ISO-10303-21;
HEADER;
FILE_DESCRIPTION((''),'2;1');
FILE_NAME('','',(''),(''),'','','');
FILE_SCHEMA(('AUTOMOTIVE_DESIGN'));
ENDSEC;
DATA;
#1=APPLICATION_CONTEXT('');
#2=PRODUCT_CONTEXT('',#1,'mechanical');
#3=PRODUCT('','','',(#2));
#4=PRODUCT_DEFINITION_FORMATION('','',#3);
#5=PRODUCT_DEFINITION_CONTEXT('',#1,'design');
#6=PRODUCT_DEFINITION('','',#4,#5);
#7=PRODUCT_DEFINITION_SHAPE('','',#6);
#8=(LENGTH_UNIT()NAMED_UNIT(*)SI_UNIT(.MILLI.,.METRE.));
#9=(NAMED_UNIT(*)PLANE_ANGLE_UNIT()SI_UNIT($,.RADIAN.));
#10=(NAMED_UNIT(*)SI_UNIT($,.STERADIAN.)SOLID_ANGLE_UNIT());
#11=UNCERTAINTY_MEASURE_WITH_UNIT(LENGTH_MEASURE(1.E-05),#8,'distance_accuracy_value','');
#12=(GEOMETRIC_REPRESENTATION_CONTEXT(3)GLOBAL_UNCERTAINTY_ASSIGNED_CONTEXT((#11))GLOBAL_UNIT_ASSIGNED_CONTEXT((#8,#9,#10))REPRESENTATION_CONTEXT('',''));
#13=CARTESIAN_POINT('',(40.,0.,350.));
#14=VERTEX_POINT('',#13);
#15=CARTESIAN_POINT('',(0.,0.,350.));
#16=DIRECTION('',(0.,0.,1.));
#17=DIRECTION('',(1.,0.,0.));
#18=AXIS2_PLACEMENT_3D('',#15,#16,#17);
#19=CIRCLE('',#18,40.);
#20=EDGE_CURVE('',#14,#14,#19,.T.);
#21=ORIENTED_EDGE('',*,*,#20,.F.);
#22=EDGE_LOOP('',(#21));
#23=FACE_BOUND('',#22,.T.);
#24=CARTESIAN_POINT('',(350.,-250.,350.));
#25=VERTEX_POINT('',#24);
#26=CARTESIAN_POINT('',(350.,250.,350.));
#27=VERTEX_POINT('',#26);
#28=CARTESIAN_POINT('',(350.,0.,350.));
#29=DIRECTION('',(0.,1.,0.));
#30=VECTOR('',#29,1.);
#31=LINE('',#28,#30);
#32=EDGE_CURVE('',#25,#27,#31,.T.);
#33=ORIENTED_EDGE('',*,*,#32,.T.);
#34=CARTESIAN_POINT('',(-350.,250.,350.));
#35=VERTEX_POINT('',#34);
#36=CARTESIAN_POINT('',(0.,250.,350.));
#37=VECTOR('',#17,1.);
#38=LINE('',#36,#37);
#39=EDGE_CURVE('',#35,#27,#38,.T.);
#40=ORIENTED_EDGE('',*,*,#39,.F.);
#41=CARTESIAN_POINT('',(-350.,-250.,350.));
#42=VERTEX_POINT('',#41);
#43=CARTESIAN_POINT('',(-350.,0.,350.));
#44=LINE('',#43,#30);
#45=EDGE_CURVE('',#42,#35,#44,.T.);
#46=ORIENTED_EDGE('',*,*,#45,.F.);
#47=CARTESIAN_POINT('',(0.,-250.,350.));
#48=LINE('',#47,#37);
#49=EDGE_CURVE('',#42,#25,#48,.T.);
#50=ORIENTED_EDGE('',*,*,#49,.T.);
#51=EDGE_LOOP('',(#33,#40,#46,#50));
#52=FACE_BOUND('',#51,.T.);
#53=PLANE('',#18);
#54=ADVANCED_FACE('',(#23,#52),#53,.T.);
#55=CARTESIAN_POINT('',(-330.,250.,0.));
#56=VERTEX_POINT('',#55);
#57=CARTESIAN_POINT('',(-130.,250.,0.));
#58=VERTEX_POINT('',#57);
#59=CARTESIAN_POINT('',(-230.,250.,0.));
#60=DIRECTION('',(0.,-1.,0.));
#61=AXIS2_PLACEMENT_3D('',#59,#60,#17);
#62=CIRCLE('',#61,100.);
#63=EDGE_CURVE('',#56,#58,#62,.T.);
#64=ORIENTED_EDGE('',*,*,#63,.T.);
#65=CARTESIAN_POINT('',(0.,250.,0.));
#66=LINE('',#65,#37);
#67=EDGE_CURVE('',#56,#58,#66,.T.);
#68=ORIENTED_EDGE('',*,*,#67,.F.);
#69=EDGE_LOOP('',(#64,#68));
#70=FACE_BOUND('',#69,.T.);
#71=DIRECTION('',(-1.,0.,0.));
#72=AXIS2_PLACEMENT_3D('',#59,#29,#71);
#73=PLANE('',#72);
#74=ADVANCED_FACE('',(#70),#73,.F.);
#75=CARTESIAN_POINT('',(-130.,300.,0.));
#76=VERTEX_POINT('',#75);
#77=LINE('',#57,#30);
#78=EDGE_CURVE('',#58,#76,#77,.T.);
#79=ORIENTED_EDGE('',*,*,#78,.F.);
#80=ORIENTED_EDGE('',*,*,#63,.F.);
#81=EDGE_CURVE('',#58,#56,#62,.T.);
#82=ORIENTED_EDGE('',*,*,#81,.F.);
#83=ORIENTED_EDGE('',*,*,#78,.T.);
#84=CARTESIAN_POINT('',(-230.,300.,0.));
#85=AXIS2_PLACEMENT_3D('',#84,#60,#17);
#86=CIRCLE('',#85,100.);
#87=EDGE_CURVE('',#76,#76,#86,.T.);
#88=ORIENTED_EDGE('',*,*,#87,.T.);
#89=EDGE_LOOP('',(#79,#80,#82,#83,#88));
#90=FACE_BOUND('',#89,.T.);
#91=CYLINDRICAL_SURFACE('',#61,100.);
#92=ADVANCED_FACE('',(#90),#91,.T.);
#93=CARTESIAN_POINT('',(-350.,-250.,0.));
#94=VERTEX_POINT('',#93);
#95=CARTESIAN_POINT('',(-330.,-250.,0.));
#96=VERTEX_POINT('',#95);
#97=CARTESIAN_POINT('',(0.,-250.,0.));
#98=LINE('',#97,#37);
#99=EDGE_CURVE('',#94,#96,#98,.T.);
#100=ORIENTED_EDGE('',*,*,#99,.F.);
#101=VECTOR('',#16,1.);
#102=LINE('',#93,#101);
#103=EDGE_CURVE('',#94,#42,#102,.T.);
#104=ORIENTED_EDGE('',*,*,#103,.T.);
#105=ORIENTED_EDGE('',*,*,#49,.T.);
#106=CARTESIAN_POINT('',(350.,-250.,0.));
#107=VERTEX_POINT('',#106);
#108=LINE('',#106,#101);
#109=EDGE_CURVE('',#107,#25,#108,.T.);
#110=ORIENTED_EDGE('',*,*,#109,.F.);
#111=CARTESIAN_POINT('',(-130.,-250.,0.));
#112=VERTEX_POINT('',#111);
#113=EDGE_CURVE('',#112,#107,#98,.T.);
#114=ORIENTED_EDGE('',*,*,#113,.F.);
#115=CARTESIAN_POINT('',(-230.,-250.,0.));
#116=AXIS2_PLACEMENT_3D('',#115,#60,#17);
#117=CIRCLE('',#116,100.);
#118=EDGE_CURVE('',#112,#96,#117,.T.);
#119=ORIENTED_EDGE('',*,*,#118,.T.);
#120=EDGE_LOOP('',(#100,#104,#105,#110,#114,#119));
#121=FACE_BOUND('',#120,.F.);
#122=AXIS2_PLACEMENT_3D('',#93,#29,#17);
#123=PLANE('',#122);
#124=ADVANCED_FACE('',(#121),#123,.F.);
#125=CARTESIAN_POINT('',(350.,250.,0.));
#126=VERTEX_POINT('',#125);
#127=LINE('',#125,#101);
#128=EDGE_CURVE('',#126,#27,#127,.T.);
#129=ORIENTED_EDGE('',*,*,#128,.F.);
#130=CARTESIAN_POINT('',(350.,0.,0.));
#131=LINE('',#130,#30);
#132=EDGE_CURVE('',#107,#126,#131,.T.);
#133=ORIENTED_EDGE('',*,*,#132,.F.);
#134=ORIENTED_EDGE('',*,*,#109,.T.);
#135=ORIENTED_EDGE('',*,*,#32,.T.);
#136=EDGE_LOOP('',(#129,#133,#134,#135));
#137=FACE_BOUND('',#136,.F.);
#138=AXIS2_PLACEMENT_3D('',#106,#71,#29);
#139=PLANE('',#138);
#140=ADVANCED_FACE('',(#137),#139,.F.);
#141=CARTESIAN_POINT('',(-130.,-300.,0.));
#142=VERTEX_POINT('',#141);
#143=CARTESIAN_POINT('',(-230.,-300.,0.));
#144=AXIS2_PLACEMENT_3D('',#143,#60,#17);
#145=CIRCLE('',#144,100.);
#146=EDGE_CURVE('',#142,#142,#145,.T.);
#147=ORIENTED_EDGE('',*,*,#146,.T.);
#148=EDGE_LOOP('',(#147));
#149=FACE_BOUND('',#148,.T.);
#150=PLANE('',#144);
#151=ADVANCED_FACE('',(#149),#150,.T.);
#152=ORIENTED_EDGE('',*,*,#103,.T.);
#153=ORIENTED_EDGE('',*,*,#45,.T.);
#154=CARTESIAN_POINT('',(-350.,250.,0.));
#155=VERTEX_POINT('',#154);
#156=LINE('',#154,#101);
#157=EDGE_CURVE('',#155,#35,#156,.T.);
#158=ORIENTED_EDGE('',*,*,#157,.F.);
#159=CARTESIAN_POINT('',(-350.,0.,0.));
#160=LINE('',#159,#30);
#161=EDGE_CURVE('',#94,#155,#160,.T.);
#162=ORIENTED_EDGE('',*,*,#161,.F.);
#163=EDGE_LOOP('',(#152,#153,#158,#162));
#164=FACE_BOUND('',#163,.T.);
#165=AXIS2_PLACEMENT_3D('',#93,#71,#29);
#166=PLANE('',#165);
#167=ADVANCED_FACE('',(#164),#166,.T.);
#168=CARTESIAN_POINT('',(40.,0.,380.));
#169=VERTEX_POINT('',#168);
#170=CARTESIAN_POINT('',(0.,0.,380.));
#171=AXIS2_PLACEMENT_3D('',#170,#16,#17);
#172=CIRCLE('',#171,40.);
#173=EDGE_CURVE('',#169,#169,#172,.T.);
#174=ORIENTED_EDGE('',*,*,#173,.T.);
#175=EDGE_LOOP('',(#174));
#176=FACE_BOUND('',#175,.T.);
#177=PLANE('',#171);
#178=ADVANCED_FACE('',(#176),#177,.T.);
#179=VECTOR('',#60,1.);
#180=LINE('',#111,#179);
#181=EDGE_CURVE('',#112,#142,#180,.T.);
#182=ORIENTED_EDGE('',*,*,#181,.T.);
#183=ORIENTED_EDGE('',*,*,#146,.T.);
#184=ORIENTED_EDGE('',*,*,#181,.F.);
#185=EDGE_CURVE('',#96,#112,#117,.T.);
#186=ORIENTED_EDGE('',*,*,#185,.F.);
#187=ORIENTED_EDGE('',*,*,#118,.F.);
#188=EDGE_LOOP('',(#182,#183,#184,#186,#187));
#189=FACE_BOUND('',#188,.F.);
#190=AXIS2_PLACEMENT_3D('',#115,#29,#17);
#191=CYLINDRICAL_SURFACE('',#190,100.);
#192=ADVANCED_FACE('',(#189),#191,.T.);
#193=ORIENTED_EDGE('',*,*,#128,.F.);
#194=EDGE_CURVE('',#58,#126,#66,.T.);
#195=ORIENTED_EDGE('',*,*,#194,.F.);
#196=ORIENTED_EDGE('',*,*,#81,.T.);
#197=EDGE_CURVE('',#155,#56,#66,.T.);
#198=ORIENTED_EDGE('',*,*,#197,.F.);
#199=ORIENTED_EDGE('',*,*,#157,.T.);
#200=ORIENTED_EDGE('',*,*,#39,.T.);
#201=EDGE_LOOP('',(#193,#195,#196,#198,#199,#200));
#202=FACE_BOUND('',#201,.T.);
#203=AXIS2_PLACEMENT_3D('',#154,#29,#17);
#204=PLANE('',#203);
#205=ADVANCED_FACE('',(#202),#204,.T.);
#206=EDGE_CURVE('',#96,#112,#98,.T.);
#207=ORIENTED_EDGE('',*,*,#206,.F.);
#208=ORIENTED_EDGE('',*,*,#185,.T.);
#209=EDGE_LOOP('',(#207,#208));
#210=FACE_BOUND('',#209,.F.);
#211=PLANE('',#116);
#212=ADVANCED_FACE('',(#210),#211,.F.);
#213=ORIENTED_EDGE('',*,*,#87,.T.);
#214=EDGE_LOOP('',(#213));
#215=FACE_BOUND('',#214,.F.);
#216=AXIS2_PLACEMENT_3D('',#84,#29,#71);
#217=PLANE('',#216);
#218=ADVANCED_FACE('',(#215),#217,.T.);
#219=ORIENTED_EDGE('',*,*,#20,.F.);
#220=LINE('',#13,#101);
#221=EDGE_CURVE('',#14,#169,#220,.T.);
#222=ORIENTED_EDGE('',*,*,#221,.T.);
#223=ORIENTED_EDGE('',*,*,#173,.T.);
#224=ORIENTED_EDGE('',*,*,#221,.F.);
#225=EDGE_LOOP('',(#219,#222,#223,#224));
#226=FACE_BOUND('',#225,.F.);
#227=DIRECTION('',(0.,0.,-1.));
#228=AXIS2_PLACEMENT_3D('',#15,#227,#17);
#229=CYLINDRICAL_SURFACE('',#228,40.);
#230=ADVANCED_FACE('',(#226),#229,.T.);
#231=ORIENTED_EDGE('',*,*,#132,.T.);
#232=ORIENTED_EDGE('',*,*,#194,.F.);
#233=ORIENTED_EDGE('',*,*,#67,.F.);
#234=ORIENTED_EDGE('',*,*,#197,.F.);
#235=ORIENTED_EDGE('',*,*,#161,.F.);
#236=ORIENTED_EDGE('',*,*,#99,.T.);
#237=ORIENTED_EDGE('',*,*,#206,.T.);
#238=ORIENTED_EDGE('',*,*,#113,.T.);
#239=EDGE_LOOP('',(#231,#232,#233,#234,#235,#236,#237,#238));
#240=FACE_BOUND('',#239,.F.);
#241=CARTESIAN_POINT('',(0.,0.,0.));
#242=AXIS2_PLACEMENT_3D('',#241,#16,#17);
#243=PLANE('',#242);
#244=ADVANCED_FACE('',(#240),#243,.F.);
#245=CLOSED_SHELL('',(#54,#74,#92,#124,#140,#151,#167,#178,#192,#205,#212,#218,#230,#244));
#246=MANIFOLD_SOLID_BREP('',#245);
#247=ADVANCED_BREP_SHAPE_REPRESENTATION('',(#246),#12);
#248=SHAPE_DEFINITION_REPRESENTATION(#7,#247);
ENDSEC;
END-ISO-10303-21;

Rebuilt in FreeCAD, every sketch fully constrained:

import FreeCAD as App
import Part
import Sketcher

doc = App.newDocument("Part")
params = doc.addObject("Spreadsheet::Sheet", "Params")
for row, (alias, value) in enumerate([
    ("sketch1_width", "700 mm"),
    ("sketch1_height", "500 mm"),
    ("pad1_length", "350 mm"),
    ("sketch2_diameter", "80 mm"),
    ("pad2_length", "30 mm"),
    ("sketch3_diameter", "200 mm"),
    ("pad3_length", "50 mm"),
], start=1):
    params.set(f"A{row}", alias)
    params.set(f"B{row}", "=" + value)
    params.setAlias(f"B{row}", alias)

body = doc.addObject("PartDesign::Body", "Body")

sketch1 = body.newObject("Sketcher::SketchObject", "Sketch")
sketch1.AttachmentSupport = (doc.getObject("XY_Plane"), [""])
sketch1.MapMode = "FlatFace"
sketch1.addGeometry([
    Part.LineSegment(App.Vector(-350, 250, 0), App.Vector(-350, -250, 0)),
    Part.LineSegment(App.Vector(-350, -250, 0), App.Vector(350, -250, 0)),
    Part.LineSegment(App.Vector(350, -250, 0), App.Vector(350, 250, 0)),
    Part.LineSegment(App.Vector(350, 250, 0), App.Vector(-350, 250, 0)),
], False)
sketch1.addConstraint([
    Sketcher.Constraint("Coincident", 0, 2, 1, 1),
    Sketcher.Constraint("Coincident", 1, 2, 2, 1),
    Sketcher.Constraint("Coincident", 2, 2, 3, 1),
    Sketcher.Constraint("Coincident", 3, 2, 0, 1),
    Sketcher.Constraint("Vertical", 0),
    Sketcher.Constraint("Horizontal", 1),
    Sketcher.Constraint("Vertical", 2),
    Sketcher.Constraint("Horizontal", 3),
    Sketcher.Constraint("Symmetric", 0, 2, 2, 2, -1, 1),
    Sketcher.Constraint("DistanceX", 1, 1, 1, 2, 700.0),
    Sketcher.Constraint("DistanceY", 0, 2, 0, 1, 500.0),
])
sketch1.setExpression("Constraints[9]", "Params.sketch1_width")
sketch1.setExpression("Constraints[10]", "Params.sketch1_height")
pad1 = body.newObject("PartDesign::Pad", "Pad")
pad1.Profile = sketch1
pad1.setExpression("Length", "Params.pad1_length")

sketch2 = body.newObject("Sketcher::SketchObject", "Sketch001")
sketch2.AttachmentSupport = (doc.getObject("XY_Plane"), [""])
sketch2.MapMode = "FlatFace"
sketch2.AttachmentOffset = App.Placement(App.Vector(0, 0, 350), App.Rotation())
sketch2.addGeometry(Part.Circle(App.Vector(0, 0, 0), App.Vector(0, 0, 1), 40), False)
sketch2.addConstraint([
    Sketcher.Constraint("Coincident", 0, 3, -1, 1),
    Sketcher.Constraint("Diameter", 0, 80.0),
])
sketch2.setExpression("Constraints[1]", "Params.sketch2_diameter")
pad2 = body.newObject("PartDesign::Pad", "Pad001")
pad2.Profile = sketch2
pad2.setExpression("Length", "Params.pad2_length")

sketch3 = body.newObject("Sketcher::SketchObject", "Sketch002")
sketch3.AttachmentSupport = (doc.getObject("XZ_Plane"), [""])
sketch3.MapMode = "FlatFace"
sketch3.AttachmentOffset = App.Placement(App.Vector(0, 0, 250), App.Rotation())
sketch3.addGeometry(Part.Circle(App.Vector(-230, 0, 0), App.Vector(0, 0, 1), 100), False)
sketch3.addConstraint([
    Sketcher.Constraint("PointOnObject", 0, 3, -1),
    Sketcher.Constraint("Diameter", 0, 200.0),
    Sketcher.Constraint("DistanceX", 0, 3, -1, 1, 230.0),
])
sketch3.setExpression("Constraints[1]", "Params.sketch3_diameter")
pad3 = body.newObject("PartDesign::Pad", "Pad002")
pad3.Profile = sketch3
pad3.setExpression("Length", "Params.pad3_length")
doc.recompute()

mirrored = body.newObject("PartDesign::Mirrored", "Mirrored")
mirrored.Originals = [pad3]
mirrored.MirrorPlane = (doc.getObject("XZ_Plane"), [""])
body.Tip = mirrored

doc.recompute()
